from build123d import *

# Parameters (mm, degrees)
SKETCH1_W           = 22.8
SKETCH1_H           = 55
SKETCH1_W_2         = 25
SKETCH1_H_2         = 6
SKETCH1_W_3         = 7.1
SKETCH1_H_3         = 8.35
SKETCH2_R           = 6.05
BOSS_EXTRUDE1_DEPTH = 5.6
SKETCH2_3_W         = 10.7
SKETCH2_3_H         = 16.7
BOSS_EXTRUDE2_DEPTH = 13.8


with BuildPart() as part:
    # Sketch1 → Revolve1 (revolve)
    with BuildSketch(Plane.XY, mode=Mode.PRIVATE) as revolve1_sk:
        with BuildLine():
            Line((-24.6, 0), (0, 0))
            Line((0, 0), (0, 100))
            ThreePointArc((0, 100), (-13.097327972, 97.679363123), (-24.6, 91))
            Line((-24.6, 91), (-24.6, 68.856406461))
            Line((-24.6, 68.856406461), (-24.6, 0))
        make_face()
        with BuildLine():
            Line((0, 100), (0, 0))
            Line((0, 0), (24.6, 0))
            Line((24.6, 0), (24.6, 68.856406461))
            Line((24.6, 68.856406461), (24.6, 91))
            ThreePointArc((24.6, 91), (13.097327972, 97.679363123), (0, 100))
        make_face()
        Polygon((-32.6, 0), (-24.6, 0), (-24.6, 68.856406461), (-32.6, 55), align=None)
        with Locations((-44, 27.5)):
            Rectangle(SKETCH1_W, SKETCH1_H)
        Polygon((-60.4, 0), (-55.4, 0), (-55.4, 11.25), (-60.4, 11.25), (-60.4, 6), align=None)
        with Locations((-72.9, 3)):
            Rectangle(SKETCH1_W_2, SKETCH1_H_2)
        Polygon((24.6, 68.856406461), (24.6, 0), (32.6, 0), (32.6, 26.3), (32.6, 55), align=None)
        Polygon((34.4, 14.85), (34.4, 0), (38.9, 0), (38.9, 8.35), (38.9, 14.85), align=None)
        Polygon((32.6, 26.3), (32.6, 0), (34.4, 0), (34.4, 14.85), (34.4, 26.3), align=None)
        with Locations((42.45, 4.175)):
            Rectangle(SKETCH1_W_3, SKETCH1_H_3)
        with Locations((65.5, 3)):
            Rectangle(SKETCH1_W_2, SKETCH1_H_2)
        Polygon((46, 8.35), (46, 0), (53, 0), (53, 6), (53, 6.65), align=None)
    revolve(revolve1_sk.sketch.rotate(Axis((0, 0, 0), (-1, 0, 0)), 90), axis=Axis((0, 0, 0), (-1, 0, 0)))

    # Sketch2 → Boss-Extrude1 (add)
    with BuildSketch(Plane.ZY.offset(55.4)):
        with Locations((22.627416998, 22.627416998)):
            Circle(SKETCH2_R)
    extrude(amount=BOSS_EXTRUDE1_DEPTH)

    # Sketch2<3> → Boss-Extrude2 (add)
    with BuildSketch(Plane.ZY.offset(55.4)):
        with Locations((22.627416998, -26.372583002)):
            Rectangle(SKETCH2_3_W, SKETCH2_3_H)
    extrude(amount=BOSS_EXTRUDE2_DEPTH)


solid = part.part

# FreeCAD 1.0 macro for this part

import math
import FreeCAD as App
import Part
import Sketcher

V = App.Vector
Q = App.Units.Quantity

doc = App.newDocument("Part")
body = doc.addObject("PartDesign::Body", "Body")

# Sketch on XY plane
sketch1 = doc.addObject("Sketcher::SketchObject", "Sketch")
body.addObject(sketch1)
sketch1.AttachmentSupport = (doc.XY_Plane, [""])
sketch1.MapMode = "FlatFace"
sketch1.addGeometry([
    Part.LineSegment(V(24.6, 68.9, 0), V(24.6, 91, 0)),  # 0
    Part.ArcOfCircle(Part.Circle(V(0, 61.9, 0), V(0, 0, 1), 38.1), math.radians(50), math.radians(90)),  # 1
    Part.ArcOfCircle(Part.Circle(V(0, 61.9, 0), V(0, 0, 1), 38.1), math.radians(90), math.radians(130)),  # 2
    Part.LineSegment(V(-24.6, 91, 0), V(-24.6, 68.9, 0)),  # 3
    Part.LineSegment(V(-24.6, 68.9, 0), V(-32.6, 55, 0)),  # 4
    Part.LineSegment(V(-32.6, 55, 0), V(-55.4, 55, 0)),  # 5
    Part.LineSegment(V(-55.4, 55, 0), V(-55.4, 11.2, 0)),  # 6
    Part.LineSegment(V(-55.4, 11.2, 0), V(-60.4, 11.2, 0)),  # 7
    Part.LineSegment(V(-60.4, 11.2, 0), V(-60.4, 6, 0)),  # 8
    Part.LineSegment(V(-60.4, 6, 0), V(-85.4, 6, 0)),  # 9
    Part.LineSegment(V(-85.4, 6, 0), V(-85.4, 0, 0)),  # 10
    Part.LineSegment(V(-85.4, 0, 0), V(78, 0, 0)),  # 11
    Part.LineSegment(V(78, 0, 0), V(78, 6, 0)),  # 12
    Part.LineSegment(V(78, 6, 0), V(53, 6, 0)),  # 13
    Part.LineSegment(V(53, 6, 0), V(53, 6.7, 0)),  # 14
    Part.LineSegment(V(53, 6.7, 0), V(46, 8.3, 0)),  # 15
    Part.LineSegment(V(46, 8.3, 0), V(38.9, 8.3, 0)),  # 16
    Part.LineSegment(V(38.9, 8.3, 0), V(38.9, 14.8, 0)),  # 17
    Part.LineSegment(V(38.9, 14.8, 0), V(34.4, 14.8, 0)),  # 18
    Part.LineSegment(V(34.4, 14.8, 0), V(34.4, 26.3, 0)),  # 19
    Part.LineSegment(V(34.4, 26.3, 0), V(32.6, 26.3, 0)),  # 20
    Part.LineSegment(V(32.6, 26.3, 0), V(32.6, 55, 0)),  # 21
    Part.LineSegment(V(32.6, 55, 0), V(24.6, 68.9, 0)),  # 22
], False)
sketch1.addConstraint([
    Sketcher.Constraint("Coincident", 0, 2, 1, 1),
    Sketcher.Constraint("Tangent", 1, 2, 2, 1),
    Sketcher.Constraint("Coincident", 2, 2, 3, 1),
    Sketcher.Constraint("Coincident", 3, 2, 4, 1),
    Sketcher.Constraint("Coincident", 4, 2, 5, 1),
    Sketcher.Constraint("Coincident", 5, 2, 6, 1),
    Sketcher.Constraint("Coincident", 6, 2, 7, 1),
    Sketcher.Constraint("Coincident", 7, 2, 8, 1),
    Sketcher.Constraint("Coincident", 8, 2, 9, 1),
    Sketcher.Constraint("Coincident", 9, 2, 10, 1),
    Sketcher.Constraint("Coincident", 10, 2, 11, 1),
    Sketcher.Constraint("Coincident", 11, 2, 12, 1),
    Sketcher.Constraint("Coincident", 12, 2, 13, 1),
    Sketcher.Constraint("Coincident", 13, 2, 14, 1),
    Sketcher.Constraint("Coincident", 14, 2, 15, 1),
    Sketcher.Constraint("Coincident", 15, 2, 16, 1),
    Sketcher.Constraint("Coincident", 16, 2, 17, 1),
    Sketcher.Constraint("Coincident", 17, 2, 18, 1),
    Sketcher.Constraint("Coincident", 18, 2, 19, 1),
    Sketcher.Constraint("Coincident", 19, 2, 20, 1),
    Sketcher.Constraint("Coincident", 20, 2, 21, 1),
    Sketcher.Constraint("Coincident", 21, 2, 22, 1),
    Sketcher.Constraint("Coincident", 22, 2, 0, 1),
    Sketcher.Constraint("Vertical", 0),
    Sketcher.Constraint("Vertical", 3),
    Sketcher.Constraint("Horizontal", 5),
    Sketcher.Constraint("Vertical", 6),
    Sketcher.Constraint("Horizontal", 7),
    Sketcher.Constraint("Vertical", 8),
    Sketcher.Constraint("Horizontal", 9),
    Sketcher.Constraint("Vertical", 10),
    Sketcher.Constraint("Horizontal", 11),
    Sketcher.Constraint("Vertical", 12),
    Sketcher.Constraint("Horizontal", 13),
    Sketcher.Constraint("Vertical", 14),
    Sketcher.Constraint("Horizontal", 16),
    Sketcher.Constraint("Vertical", 17),
    Sketcher.Constraint("Horizontal", 18),
    Sketcher.Constraint("Vertical", 19),
    Sketcher.Constraint("Horizontal", 20),
    Sketcher.Constraint("Vertical", 21),
    Sketcher.Constraint("Equal", 1, 2),
    Sketcher.Constraint("Symmetric", 0, 2, 2, 2, -2),
    Sketcher.Constraint("Symmetric", 4, 2, 21, 2, -2),
    Sketcher.Constraint("PointOnObject", 1, 2, -2),
    Sketcher.Constraint("PointOnObject", 10, 2, -1),
    Sketcher.Constraint("Horizontal", 9, 2, 12, 2),
    Sketcher.Constraint("Horizontal", 3, 2, 22, 2),
    Sketcher.Constraint("Equal", 9, 13),
    Sketcher.Constraint("DistanceX", 7, 2, 7, 1, Q("5 mm")),
    Sketcher.Constraint("DistanceX", 9, 2, 9, 1, Q("25 mm")),
    Sketcher.Constraint("DistanceY", 10, 2, 10, 1, Q("6 mm")),
    Sketcher.Constraint("Angle", 4, Q("-120 deg")),
    Sketcher.Constraint("Radius", 1, Q("38.12 mm")),
    Sketcher.Constraint("Distance", 4, Q("16 mm")),
    Sketcher.Constraint("DistanceX", 5, 2, 5, 1, Q("22.8 mm")),
    Sketcher.Constraint("DistanceX", 11, 1, 11, 2, Q("163.4 mm")),
    Sketcher.Constraint("DistanceX", 16, 2, 16, 1, Q("7.1 mm")),
    Sketcher.Constraint("DistanceX", 18, 2, 18, 1, Q("4.5 mm")),
    Sketcher.Constraint("DistanceX", 20, 2, 20, 1, Q("1.8 mm")),
    Sketcher.Constraint("DistanceY", 17, 1, 17, 2, Q("6.5 mm")),
    Sketcher.Constraint("DistanceY", 21, 1, 21, 2, Q("28.7 mm")),
    Sketcher.Constraint("DistanceY", -1, 1, 0, 2, Q("91 mm")),
    Sketcher.Constraint("DistanceY", -1, 1, 1, 2, Q("100 mm")),
    Sketcher.Constraint("DistanceY", -1, 1, 4, 2, Q("55 mm")),
    Sketcher.Constraint("DistanceY", 6, 2, 6, 1, Q("43.75 mm")),
    Sketcher.Constraint("DistanceY", 14, 1, 14, 2, Q("0.65 mm")),
    Sketcher.Constraint("DistanceY", 19, 1, 19, 2, Q("11.45 mm")),
])
revolution = doc.addObject("PartDesign::Revolution", "Revolution")
body.addObject(revolution)
revolution.Profile = sketch1
revolution.ReferenceAxis = (sketch1, ["H_Axis"])
revolution.Angle = 360

# Sketch on YZ plane
sketch2 = doc.addObject("Sketcher::SketchObject", "Sketch001")
body.addObject(sketch2)
sketch2.AttachmentSupport = (doc.YZ_Plane, [""])
sketch2.MapMode = "FlatFace"
sketch2.AttachmentOffset = App.Placement(V(0, 0, -55.4), App.Rotation())
sketch2.addGeometry(Part.Circle(V(23, 23, 0), V(0, 0, 1), 6), False)
sketch2.addConstraint([
    Sketcher.Constraint("Diameter", 0, Q("12.1 mm")),
    Sketcher.Constraint("DistanceX", -1, 1, 0, 3, Q("22.627417 mm")),
    Sketcher.Constraint("DistanceY", -1, 1, 0, 3, Q("22.627417 mm")),
])
pad1 = doc.addObject("PartDesign::Pad", "Pad")
body.addObject(pad1)
pad1.Profile = sketch2
pad1.Length = 5.6
pad1.Reversed = True

# Sketch on YZ plane
sketch3 = doc.addObject("Sketcher::SketchObject", "Sketch002")
body.addObject(sketch3)
sketch3.AttachmentSupport = (doc.YZ_Plane, [""])
sketch3.MapMode = "FlatFace"
sketch3.AttachmentOffset = App.Placement(V(0, 0, -55.4), App.Rotation())
sketch3.addGeometry([
    Part.LineSegment(V(-18, 17, 0), V(-35, 17, 0)),
    Part.LineSegment(V(-35, 17, 0), V(-35, 28, 0)),
    Part.LineSegment(V(-35, 28, 0), V(-18, 28, 0)),
    Part.LineSegment(V(-18, 28, 0), V(-18, 17, 0)),
], False)
sketch3.addConstraint([
    Sketcher.Constraint("Coincident", 0, 2, 1, 1),
    Sketcher.Constraint("Coincident", 1, 2, 2, 1),
    Sketcher.Constraint("Coincident", 2, 2, 3, 1),
    Sketcher.Constraint("Coincident", 3, 2, 0, 1),
    Sketcher.Constraint("Horizontal", 0),
    Sketcher.Constraint("Vertical", 1),
    Sketcher.Constraint("Horizontal", 2),
    Sketcher.Constraint("Vertical", 3),
    Sketcher.Constraint("DistanceX", 0, 2, 0, 1, Q("16.7 mm")),
    Sketcher.Constraint("DistanceY", 1, 1, 1, 2, Q("10.7 mm")),
    Sketcher.Constraint("DistanceX", 0, 2, -1, 1, Q("34.722583 mm")),
    Sketcher.Constraint("DistanceY", -1, 1, 0, 2, Q("17.277417 mm")),
])
pad2 = doc.addObject("PartDesign::Pad", "Pad001")
body.addObject(pad2)
pad2.Profile = sketch3
pad2.Length = 13.8
pad2.Reversed = True

doc.recompute()
